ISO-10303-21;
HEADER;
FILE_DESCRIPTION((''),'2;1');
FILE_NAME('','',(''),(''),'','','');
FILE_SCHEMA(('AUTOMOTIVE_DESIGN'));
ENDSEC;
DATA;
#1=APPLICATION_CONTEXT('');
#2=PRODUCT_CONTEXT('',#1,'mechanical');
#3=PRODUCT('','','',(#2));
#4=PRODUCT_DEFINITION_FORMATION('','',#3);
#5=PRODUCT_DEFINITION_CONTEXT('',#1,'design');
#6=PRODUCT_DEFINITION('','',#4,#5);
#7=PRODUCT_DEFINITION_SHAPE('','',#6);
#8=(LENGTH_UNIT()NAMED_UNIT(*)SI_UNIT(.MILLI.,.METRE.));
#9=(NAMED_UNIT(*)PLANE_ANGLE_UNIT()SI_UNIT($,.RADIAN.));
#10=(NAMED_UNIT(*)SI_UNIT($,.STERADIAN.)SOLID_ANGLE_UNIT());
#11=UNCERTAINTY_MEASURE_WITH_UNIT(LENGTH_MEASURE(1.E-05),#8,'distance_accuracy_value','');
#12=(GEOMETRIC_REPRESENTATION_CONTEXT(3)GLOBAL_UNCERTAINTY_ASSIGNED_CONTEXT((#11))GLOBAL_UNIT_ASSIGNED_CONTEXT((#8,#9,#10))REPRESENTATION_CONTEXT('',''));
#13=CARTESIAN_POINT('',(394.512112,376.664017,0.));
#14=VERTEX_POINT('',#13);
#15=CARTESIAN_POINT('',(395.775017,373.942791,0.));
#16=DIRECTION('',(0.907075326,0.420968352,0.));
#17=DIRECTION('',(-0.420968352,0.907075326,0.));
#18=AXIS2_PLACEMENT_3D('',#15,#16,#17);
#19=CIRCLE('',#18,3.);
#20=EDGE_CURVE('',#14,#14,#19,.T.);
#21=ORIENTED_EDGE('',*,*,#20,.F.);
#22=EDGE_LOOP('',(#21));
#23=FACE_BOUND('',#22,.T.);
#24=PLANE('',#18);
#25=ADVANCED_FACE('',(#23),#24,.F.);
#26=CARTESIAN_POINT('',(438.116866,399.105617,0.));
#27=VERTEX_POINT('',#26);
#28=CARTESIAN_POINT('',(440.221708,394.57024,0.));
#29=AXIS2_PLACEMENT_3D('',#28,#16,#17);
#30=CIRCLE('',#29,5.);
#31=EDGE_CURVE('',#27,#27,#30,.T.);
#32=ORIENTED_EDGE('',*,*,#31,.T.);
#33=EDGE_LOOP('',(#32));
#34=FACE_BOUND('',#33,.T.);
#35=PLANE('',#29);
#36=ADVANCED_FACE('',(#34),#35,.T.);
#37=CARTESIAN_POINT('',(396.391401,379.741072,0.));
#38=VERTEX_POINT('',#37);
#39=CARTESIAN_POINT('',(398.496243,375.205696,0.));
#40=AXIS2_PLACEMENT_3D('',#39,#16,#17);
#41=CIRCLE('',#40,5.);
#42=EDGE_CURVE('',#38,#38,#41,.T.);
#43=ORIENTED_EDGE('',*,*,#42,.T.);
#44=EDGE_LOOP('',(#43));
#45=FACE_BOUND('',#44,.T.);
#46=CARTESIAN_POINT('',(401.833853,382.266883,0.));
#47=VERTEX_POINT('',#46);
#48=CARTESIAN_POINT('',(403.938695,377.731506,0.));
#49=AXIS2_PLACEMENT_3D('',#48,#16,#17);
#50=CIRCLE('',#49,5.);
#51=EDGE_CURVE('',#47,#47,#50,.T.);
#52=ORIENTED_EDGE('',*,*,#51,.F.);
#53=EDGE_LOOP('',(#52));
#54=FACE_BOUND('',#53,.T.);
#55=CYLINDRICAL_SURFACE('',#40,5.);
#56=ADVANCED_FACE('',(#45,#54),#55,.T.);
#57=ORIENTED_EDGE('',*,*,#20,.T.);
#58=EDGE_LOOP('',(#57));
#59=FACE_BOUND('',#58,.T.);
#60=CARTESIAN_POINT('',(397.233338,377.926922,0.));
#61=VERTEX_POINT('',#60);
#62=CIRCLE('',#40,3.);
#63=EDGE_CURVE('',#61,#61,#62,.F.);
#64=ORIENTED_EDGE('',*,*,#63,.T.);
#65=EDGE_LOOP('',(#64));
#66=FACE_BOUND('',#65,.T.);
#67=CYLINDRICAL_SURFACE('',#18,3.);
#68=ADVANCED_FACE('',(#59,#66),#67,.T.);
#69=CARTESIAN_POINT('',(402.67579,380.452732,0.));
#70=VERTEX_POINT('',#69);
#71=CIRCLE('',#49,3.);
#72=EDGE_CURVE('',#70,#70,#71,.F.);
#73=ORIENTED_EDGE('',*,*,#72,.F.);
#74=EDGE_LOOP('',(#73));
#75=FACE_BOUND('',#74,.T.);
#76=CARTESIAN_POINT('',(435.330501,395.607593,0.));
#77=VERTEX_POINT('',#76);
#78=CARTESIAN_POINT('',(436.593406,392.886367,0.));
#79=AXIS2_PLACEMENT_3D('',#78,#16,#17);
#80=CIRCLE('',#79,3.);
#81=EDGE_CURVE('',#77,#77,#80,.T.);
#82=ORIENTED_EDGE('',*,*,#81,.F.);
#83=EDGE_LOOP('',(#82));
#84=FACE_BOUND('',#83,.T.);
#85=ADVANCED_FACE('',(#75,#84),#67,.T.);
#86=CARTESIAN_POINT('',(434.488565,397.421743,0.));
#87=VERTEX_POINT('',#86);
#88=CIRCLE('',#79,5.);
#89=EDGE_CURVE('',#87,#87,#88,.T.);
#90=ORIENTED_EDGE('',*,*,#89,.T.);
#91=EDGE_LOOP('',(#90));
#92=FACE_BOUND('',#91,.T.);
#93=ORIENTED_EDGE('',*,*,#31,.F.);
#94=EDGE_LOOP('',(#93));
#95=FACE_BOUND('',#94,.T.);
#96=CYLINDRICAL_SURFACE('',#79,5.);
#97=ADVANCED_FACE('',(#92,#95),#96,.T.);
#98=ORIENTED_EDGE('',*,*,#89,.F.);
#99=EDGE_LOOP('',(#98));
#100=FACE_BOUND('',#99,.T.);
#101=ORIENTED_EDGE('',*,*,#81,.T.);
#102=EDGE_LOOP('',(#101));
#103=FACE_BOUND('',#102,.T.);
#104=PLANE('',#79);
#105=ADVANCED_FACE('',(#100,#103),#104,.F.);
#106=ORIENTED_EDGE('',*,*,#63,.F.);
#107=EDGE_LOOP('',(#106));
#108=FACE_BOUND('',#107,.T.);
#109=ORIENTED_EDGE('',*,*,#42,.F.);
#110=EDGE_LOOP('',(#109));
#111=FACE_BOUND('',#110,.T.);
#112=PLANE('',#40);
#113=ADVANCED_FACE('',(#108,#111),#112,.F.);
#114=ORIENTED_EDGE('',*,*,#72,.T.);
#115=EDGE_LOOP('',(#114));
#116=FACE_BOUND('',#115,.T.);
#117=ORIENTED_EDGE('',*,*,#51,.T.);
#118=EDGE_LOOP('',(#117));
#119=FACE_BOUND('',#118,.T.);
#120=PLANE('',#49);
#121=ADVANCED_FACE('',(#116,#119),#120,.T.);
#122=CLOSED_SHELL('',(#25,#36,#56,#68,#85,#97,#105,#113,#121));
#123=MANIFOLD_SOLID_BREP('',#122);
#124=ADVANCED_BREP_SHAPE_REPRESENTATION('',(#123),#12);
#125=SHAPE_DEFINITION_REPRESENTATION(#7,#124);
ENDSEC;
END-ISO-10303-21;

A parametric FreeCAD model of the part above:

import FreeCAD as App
import Part
import Sketcher

V = App.Vector

doc = App.newDocument("Part")
body = doc.addObject("PartDesign::Body", "Body")

sketch1 = body.newObject("Sketcher::SketchObject", "Sketch")
sketch1.Placement = App.Placement(V(436.593406, 392.886367, 0), App.Rotation(V(-0.420968352, 0.907075326, 0), V(0, 0, 1), V(0.907075326, 0.420968352, 0), "ZXY"))
sketch1.addGeometry(Part.Circle(V(0, 0, 0), V(0, 0, 1), 5), False)
sketch1.addConstraint([
    Sketcher.Constraint("Coincident", 0, 3, -1, 1),
    Sketcher.Constraint("Diameter", 0, 10.0),
])

sketch2 = body.newObject("Sketcher::SketchObject", "Sketch001")
sketch2.Placement = App.Placement(V(-72.653043, 156.548068, 0), App.Rotation(V(0.907075326, 0.420968353, 0), V(0, 0, 1.000000001), V(0.420968353, -0.907075326, 0), "ZXY"))
sketch2.addGeometry(Part.LineSegment(V(561.4, 0, 0), V(565.4, 0, 0)), False)
sketch2.addConstraint([
    Sketcher.Constraint("Horizontal", 0),
    Sketcher.Constraint("PointOnObject", 0, 1, -1),
    Sketcher.Constraint("DistanceX", 0, 1, 0, 2, 4.0),
    Sketcher.Constraint("DistanceX", -1, 1, 0, 1, 561.415833),
])
doc.recompute()

additivepipe = body.newObject("PartDesign::AdditivePipe", "AdditivePipe")
additivepipe.Profile = sketch1
additivepipe.Spine = (sketch2, ["Edge1"])

sketch3 = body.newObject("Sketcher::SketchObject", "Sketch002")
sketch3.Placement = App.Placement(V(395.775017, 373.942791, 0), App.Rotation(V(-0.420968352, 0.907075326, 0), V(0, 0, 1), V(0.907075326, 0.420968352, 0), "ZXY"))
sketch3.addGeometry(Part.Circle(V(0, 0, 0), V(0, 0, 1), 3), False)
sketch3.addConstraint([
    Sketcher.Constraint("Coincident", 0, 3, -1, 1),
    Sketcher.Constraint("Diameter", 0, 6.0),
])

sketch4 = body.newObject("Sketcher::SketchObject", "Sketch003")
sketch4.Placement = App.Placement(V(-72.653043, 156.548068, 0), App.Rotation(V(0.907075326, 0.420968352, 0), V(0, 0, 1), V(0.420968352, -0.907075326, 0), "ZXY"))
sketch4.addGeometry(Part.LineSegment(V(516, 0, 0), V(561, 0, 0)), False)
sketch4.addConstraint([
    Sketcher.Constraint("Horizontal", 0),
    Sketcher.Constraint("PointOnObject", 0, 1, -1),
    Sketcher.Constraint("DistanceX", 0, 1, 0, 2, 45.0),
    Sketcher.Constraint("DistanceX", -1, 1, 0, 1, 516.415833),
])
doc.recompute()

additivepipe2 = body.newObject("PartDesign::AdditivePipe", "AdditivePipe001")
additivepipe2.Profile = sketch3
additivepipe2.Spine = (sketch4, ["Edge1"])

sketch5 = body.newObject("Sketcher::SketchObject", "Sketch004")
sketch5.Placement = App.Placement(V(398.496243, 375.205696, 0), App.Rotation(V(-0.420968352, 0.907075326, 0), V(0, 0, 1), V(0.907075326, 0.420968352, 0), "ZXY"))
sketch5.addGeometry(Part.Circle(V(0, 0, 0), V(0, 0, 1), 5), False)
sketch5.addConstraint([
    Sketcher.Constraint("Coincident", 0, 3, -1, 1),
    Sketcher.Constraint("Diameter", 0, 10.0),
])

sketch6 = body.newObject("Sketcher::SketchObject", "Sketch005")
sketch6.Placement = App.Placement(V(-72.653043, 156.548068, 0), App.Rotation(V(0.907075326, 0.420968353, 0), V(0, 0, 1.000000001), V(0.420968353, -0.907075326, 0), "ZXY"))
sketch6.addGeometry(Part.LineSegment(V(519, 0, 0), V(525, 0, 0)), False)
sketch6.addConstraint([
    Sketcher.Constraint("Horizontal", 0),
    Sketcher.Constraint("PointOnObject", 0, 1, -1),
    Sketcher.Constraint("DistanceX", 0, 1, 0, 2, 6.0),
    Sketcher.Constraint("DistanceX", -1, 1, 0, 1, 519.415833),
])
doc.recompute()

additivepipe3 = body.newObject("PartDesign::AdditivePipe", "AdditivePipe002")
additivepipe3.Profile = sketch5
additivepipe3.Spine = (sketch6, ["Edge1"])

doc.recompute()
